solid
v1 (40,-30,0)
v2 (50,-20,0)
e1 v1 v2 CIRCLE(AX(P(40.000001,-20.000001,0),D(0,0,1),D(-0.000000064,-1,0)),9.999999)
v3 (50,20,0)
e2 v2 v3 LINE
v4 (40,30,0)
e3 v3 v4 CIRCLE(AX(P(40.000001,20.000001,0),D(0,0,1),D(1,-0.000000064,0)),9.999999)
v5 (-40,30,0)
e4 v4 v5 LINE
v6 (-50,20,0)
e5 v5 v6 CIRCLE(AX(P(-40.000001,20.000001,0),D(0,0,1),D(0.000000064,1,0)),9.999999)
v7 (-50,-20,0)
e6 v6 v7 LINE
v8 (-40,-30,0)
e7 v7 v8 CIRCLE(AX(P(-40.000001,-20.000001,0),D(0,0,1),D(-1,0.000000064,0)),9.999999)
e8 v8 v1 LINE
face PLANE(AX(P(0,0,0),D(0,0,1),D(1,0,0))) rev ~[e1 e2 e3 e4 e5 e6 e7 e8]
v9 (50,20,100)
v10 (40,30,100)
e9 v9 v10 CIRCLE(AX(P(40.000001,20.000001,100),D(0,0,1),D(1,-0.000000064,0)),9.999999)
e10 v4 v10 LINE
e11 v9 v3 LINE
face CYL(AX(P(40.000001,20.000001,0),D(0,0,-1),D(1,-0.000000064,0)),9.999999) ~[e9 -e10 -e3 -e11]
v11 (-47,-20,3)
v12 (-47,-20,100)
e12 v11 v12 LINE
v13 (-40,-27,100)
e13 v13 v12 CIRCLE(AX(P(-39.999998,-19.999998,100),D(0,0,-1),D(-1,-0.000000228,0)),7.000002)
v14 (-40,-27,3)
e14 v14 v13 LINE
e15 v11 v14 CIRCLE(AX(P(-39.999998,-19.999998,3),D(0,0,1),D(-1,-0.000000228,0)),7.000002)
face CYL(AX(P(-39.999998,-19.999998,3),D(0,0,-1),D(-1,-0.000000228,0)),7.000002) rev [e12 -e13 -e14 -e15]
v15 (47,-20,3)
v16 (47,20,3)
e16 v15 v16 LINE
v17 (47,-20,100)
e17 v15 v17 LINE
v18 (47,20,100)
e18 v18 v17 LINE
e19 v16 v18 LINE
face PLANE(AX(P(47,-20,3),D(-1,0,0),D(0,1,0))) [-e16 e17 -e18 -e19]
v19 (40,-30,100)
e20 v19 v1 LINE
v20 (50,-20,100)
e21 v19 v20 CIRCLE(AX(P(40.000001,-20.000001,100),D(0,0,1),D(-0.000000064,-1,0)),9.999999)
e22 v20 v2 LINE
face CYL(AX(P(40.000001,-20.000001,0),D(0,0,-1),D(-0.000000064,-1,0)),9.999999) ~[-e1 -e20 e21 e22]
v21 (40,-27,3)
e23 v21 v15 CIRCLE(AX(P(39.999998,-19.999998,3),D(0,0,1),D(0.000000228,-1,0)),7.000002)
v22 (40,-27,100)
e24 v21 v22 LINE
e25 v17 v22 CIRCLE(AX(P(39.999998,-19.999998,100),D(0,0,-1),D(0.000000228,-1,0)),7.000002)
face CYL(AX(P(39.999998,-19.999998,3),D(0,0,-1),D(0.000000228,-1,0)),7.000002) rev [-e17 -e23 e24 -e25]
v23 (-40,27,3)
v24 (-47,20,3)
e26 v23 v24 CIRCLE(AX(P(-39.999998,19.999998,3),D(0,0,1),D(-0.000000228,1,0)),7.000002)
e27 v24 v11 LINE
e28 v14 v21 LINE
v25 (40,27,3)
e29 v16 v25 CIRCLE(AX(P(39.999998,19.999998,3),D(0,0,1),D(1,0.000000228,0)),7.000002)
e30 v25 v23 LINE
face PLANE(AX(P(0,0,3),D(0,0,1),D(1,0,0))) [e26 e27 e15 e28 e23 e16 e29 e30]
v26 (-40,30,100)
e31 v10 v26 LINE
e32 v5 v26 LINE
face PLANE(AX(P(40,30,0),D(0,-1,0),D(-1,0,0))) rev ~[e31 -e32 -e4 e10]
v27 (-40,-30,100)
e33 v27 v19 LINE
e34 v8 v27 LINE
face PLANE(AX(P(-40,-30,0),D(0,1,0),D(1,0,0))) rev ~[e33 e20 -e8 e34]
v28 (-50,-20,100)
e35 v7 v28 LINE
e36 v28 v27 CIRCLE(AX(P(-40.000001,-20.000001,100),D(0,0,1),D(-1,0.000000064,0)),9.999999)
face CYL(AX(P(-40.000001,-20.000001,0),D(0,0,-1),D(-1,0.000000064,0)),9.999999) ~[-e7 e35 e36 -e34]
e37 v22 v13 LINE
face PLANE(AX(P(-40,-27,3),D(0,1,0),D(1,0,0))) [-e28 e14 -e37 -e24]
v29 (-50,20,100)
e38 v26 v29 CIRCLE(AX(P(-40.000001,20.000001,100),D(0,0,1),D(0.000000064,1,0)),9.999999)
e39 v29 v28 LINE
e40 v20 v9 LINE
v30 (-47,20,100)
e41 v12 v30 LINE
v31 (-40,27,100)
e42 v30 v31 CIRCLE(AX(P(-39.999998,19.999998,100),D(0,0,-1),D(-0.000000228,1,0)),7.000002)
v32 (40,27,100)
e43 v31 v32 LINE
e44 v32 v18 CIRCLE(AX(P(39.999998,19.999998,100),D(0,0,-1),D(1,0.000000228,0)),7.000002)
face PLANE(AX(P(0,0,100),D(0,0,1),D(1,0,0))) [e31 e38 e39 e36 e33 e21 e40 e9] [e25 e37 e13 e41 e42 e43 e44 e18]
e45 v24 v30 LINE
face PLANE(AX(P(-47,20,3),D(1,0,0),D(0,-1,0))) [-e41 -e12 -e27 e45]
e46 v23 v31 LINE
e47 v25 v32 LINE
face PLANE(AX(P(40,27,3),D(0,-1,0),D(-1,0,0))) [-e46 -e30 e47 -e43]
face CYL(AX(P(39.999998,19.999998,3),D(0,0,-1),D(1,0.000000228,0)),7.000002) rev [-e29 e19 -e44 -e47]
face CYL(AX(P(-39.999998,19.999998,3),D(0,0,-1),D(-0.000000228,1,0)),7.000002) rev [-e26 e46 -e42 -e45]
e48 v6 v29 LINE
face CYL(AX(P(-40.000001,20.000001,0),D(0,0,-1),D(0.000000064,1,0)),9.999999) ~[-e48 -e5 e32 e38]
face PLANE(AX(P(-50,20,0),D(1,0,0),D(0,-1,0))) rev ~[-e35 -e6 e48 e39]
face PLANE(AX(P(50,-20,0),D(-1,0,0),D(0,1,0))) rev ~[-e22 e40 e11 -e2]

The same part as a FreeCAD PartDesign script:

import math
import FreeCAD as App
import Part
import Sketcher

doc = App.newDocument("Part")
body = doc.addObject("PartDesign::Body", "Body")

sketch1 = doc.addObject("Sketcher::SketchObject", "Sketch")
body.addObject(sketch1)
sketch1.AttachmentSupport = (doc.XY_Plane, [""])
sketch1.MapMode = "FlatFace"
sketch1.addGeometry(Part.ArcOfCircle(Part.Circle(App.Vector(40, 20, 0), App.Vector(0, 0, 1), 10), math.radians(0), math.radians(90)), False)
sketch1.addGeometry(Part.LineSegment(App.Vector(40, 30, 0), App.Vector(-40, 30, 0)), False)
sketch1.addGeometry(Part.ArcOfCircle(Part.Circle(App.Vector(-40, 20, 0), App.Vector(0, 0, 1), 10), math.radians(90), math.radians(180)), False)
sketch1.addGeometry(Part.LineSegment(App.Vector(-50, 20, 0), App.Vector(-50, -20, 0)), False)
sketch1.addGeometry(Part.ArcOfCircle(Part.Circle(App.Vector(-40, -20, 0), App.Vector(0, 0, 1), 10), math.radians(180), math.radians(270)), False)
sketch1.addGeometry(Part.LineSegment(App.Vector(-40, -30, 0), App.Vector(40, -30, 0)), False)
sketch1.addGeometry(Part.ArcOfCircle(Part.Circle(App.Vector(40, -20, 0), App.Vector(0, 0, 1), 10), math.radians(-90), math.radians(0)), False)
sketch1.addGeometry(Part.LineSegment(App.Vector(50, -20, 0), App.Vector(50, 20, 0)), False)
sketch1.addConstraint(Sketcher.Constraint("Tangent", 0, 2, 1, 1))
sketch1.addConstraint(Sketcher.Constraint("Tangent", 1, 2, 2, 1))
sketch1.addConstraint(Sketcher.Constraint("Tangent", 2, 2, 3, 1))
sketch1.addConstraint(Sketcher.Constraint("Tangent", 3, 2, 4, 1))
sketch1.addConstraint(Sketcher.Constraint("Tangent", 4, 2, 5, 1))
sketch1.addConstraint(Sketcher.Constraint("Tangent", 5, 2, 6, 1))
sketch1.addConstraint(Sketcher.Constraint("Tangent", 6, 2, 7, 1))
sketch1.addConstraint(Sketcher.Constraint("Tangent", 7, 2, 0, 1))
sketch1.addConstraint(Sketcher.Constraint("Horizontal", 1))
sketch1.addConstraint(Sketcher.Constraint("Vertical", 3))
sketch1.addConstraint(Sketcher.Constraint("Horizontal", 5))
sketch1.addConstraint(Sketcher.Constraint("Vertical", 7))
sketch1.addConstraint(Sketcher.Constraint("Equal", 0, 2))
sketch1.addConstraint(Sketcher.Constraint("Equal", 2, 4))
sketch1.addConstraint(Sketcher.Constraint("Equal", 4, 6))
sketch1.addConstraint(Sketcher.Constraint("Symmetric", 0, 3, 4, 3, -1, 1))
sketch1.addConstraint(Sketcher.Constraint("Radius", 0, 9.999999))
sketch1.addConstraint(Sketcher.Constraint("DistanceX", 1, 2, 1, 1, 80.0))
sketch1.addConstraint(Sketcher.Constraint("DistanceY", 3, 2, 3, 1, 40.0))
pad1 = doc.addObject("PartDesign::Pad", "Pad")
body.addObject(pad1)
pad1.Profile = sketch1
pad1.Length = 3

sketch2 = doc.addObject("Sketcher::SketchObject", "Sketch001")
body.addObject(sketch2)
sketch2.AttachmentSupport = (doc.XY_Plane, [""])
sketch2.MapMode = "FlatFace"
sketch2.addGeometry(Part.ArcOfCircle(Part.Circle(App.Vector(40, 20, 0), App.Vector(0, 0, 1), 10), math.radians(0), math.radians(90)), False)
sketch2.addGeometry(Part.LineSegment(App.Vector(40, 30, 0), App.Vector(-40, 30, 0)), False)
sketch2.addGeometry(Part.ArcOfCircle(Part.Circle(App.Vector(-40, 20, 0), App.Vector(0, 0, 1), 10), math.radians(90), math.radians(180)), False)
sketch2.addGeometry(Part.LineSegment(App.Vector(-50, 20, 0), App.Vector(-50, -20, 0)), False)
sketch2.addGeometry(Part.ArcOfCircle(Part.Circle(App.Vector(-40, -20, 0), App.Vector(0, 0, 1), 10), math.radians(180), math.radians(270)), False)
sketch2.addGeometry(Part.LineSegment(App.Vector(-40, -30, 0), App.Vector(40, -30, 0)), False)
sketch2.addGeometry(Part.ArcOfCircle(Part.Circle(App.Vector(40, -20, 0), App.Vector(0, 0, 1), 10), math.radians(-90), math.radians(0)), False)
sketch2.addGeometry(Part.LineSegment(App.Vector(50, -20, 0), App.Vector(50, 20, 0)), False)
sketch2.addConstraint(Sketcher.Constraint("Tangent", 0, 2, 1, 1))
sketch2.addConstraint(Sketcher.Constraint("Tangent", 1, 2, 2, 1))
sketch2.addConstraint(Sketcher.Constraint("Tangent", 2, 2, 3, 1))
sketch2.addConstraint(Sketcher.Constraint("Tangent", 3, 2, 4, 1))
sketch2.addConstraint(Sketcher.Constraint("Tangent", 4, 2, 5, 1))
sketch2.addConstraint(Sketcher.Constraint("Tangent", 5, 2, 6, 1))
sketch2.addConstraint(Sketcher.Constraint("Tangent", 6, 2, 7, 1))
sketch2.addConstraint(Sketcher.Constraint("Tangent", 7, 2, 0, 1))
sketch2.addConstraint(Sketcher.Constraint("Horizontal", 1))
sketch2.addConstraint(Sketcher.Constraint("Vertical", 3))
sketch2.addConstraint(Sketcher.Constraint("Horizontal", 5))
sketch2.addConstraint(Sketcher.Constraint("Vertical", 7))
sketch2.addConstraint(Sketcher.Constraint("Equal", 0, 2))
sketch2.addConstraint(Sketcher.Constraint("Equal", 2, 4))
sketch2.addConstraint(Sketcher.Constraint("Equal", 4, 6))
sketch2.addConstraint(Sketcher.Constraint("Symmetric", 0, 3, 4, 3, -1, 1))
sketch2.addConstraint(Sketcher.Constraint("Radius", 0, 9.999999))
sketch2.addConstraint(Sketcher.Constraint("DistanceX", 1, 2, 1, 1, 80.0))
sketch2.addConstraint(Sketcher.Constraint("DistanceY", 3, 2, 3, 1, 40.0))
pad2 = doc.addObject("PartDesign::Pad", "Pad001")
body.addObject(pad2)
pad2.Profile = sketch2
pad2.Length = 100

sketch3 = doc.addObject("Sketcher::SketchObject", "Sketch002")
body.addObject(sketch3)
sketch3.AttachmentSupport = (doc.XY_Plane, [""])
sketch3.MapMode = "FlatFace"
sketch3.AttachmentOffset = App.Placement(App.Vector(0, 0, 3), App.Rotation())
sketch3.addGeometry(Part.LineSegment(App.Vector(-47, 20, 0), App.Vector(-47, -20, 0)), False)
sketch3.addGeometry(Part.ArcOfCircle(Part.Circle(App.Vector(-40, -20, 0), App.Vector(0, 0, 1), 7), math.radians(-180), math.radians(-90)), False)
sketch3.addGeometry(Part.LineSegment(App.Vector(-40, -27, 0), App.Vector(40, -27, 0)), False)
sketch3.addGeometry(Part.ArcOfCircle(Part.Circle(App.Vector(40, -20, 0), App.Vector(0, 0, 1), 7), math.radians(-90), math.radians(0)), False)
sketch3.addGeometry(Part.LineSegment(App.Vector(47, -20, 0), App.Vector(47, 20, 0)), False)
sketch3.addGeometry(Part.ArcOfCircle(Part.Circle(App.Vector(40, 20, 0), App.Vector(0, 0, 1), 7), math.radians(0), math.radians(90)), False)
sketch3.addGeometry(Part.LineSegment(App.Vector(40, 27, 0), App.Vector(-40, 27, 0)), False)
sketch3.addGeometry(Part.ArcOfCircle(Part.Circle(App.Vector(-40, 20, 0), App.Vector(0, 0, 1), 7), math.radians(90), math.radians(180)), False)
sketch3.addConstraint(Sketcher.Constraint("Tangent", 0, 2, 1, 1))
sketch3.addConstraint(Sketcher.Constraint("Tangent", 1, 2, 2, 1))
sketch3.addConstraint(Sketcher.Constraint("Tangent", 2, 2, 3, 1))
sketch3.addConstraint(Sketcher.Constraint("Tangent", 3, 2, 4, 1))
sketch3.addConstraint(Sketcher.Constraint("Tangent", 4, 2, 5, 1))
sketch3.addConstraint(Sketcher.Constraint("Tangent", 5, 2, 6, 1))
sketch3.addConstraint(Sketcher.Constraint("Tangent", 6, 2, 7, 1))
sketch3.addConstraint(Sketcher.Constraint("Tangent", 7, 2, 0, 1))
sketch3.addConstraint(Sketcher.Constraint("Vertical", 0))
sketch3.addConstraint(Sketcher.Constraint("Horizontal", 2))
sketch3.addConstraint(Sketcher.Constraint("Vertical", 4))
sketch3.addConstraint(Sketcher.Constraint("Horizontal", 6))
sketch3.addConstraint(Sketcher.Constraint("Equal", 1, 3))
sketch3.addConstraint(Sketcher.Constraint("Equal", 3, 5))
sketch3.addConstraint(Sketcher.Constraint("Equal", 5, 7))
sketch3.addConstraint(Sketcher.Constraint("Symmetric", 1, 3, 5, 3, -1, 1))
sketch3.addConstraint(Sketcher.Constraint("Radius", 1, 7.000002))
sketch3.addConstraint(Sketcher.Constraint("DistanceX", 2, 1, 2, 2, 80.0))
sketch3.addConstraint(Sketcher.Constraint("DistanceY", 0, 2, 0, 1, 40.0))
pocket1 = doc.addObject("PartDesign::Pocket", "Pocket")
body.addObject(pocket1)
pocket1.Profile = sketch3
pocket1.Length = 100
pocket1.Reversed = True

doc.recompute()
